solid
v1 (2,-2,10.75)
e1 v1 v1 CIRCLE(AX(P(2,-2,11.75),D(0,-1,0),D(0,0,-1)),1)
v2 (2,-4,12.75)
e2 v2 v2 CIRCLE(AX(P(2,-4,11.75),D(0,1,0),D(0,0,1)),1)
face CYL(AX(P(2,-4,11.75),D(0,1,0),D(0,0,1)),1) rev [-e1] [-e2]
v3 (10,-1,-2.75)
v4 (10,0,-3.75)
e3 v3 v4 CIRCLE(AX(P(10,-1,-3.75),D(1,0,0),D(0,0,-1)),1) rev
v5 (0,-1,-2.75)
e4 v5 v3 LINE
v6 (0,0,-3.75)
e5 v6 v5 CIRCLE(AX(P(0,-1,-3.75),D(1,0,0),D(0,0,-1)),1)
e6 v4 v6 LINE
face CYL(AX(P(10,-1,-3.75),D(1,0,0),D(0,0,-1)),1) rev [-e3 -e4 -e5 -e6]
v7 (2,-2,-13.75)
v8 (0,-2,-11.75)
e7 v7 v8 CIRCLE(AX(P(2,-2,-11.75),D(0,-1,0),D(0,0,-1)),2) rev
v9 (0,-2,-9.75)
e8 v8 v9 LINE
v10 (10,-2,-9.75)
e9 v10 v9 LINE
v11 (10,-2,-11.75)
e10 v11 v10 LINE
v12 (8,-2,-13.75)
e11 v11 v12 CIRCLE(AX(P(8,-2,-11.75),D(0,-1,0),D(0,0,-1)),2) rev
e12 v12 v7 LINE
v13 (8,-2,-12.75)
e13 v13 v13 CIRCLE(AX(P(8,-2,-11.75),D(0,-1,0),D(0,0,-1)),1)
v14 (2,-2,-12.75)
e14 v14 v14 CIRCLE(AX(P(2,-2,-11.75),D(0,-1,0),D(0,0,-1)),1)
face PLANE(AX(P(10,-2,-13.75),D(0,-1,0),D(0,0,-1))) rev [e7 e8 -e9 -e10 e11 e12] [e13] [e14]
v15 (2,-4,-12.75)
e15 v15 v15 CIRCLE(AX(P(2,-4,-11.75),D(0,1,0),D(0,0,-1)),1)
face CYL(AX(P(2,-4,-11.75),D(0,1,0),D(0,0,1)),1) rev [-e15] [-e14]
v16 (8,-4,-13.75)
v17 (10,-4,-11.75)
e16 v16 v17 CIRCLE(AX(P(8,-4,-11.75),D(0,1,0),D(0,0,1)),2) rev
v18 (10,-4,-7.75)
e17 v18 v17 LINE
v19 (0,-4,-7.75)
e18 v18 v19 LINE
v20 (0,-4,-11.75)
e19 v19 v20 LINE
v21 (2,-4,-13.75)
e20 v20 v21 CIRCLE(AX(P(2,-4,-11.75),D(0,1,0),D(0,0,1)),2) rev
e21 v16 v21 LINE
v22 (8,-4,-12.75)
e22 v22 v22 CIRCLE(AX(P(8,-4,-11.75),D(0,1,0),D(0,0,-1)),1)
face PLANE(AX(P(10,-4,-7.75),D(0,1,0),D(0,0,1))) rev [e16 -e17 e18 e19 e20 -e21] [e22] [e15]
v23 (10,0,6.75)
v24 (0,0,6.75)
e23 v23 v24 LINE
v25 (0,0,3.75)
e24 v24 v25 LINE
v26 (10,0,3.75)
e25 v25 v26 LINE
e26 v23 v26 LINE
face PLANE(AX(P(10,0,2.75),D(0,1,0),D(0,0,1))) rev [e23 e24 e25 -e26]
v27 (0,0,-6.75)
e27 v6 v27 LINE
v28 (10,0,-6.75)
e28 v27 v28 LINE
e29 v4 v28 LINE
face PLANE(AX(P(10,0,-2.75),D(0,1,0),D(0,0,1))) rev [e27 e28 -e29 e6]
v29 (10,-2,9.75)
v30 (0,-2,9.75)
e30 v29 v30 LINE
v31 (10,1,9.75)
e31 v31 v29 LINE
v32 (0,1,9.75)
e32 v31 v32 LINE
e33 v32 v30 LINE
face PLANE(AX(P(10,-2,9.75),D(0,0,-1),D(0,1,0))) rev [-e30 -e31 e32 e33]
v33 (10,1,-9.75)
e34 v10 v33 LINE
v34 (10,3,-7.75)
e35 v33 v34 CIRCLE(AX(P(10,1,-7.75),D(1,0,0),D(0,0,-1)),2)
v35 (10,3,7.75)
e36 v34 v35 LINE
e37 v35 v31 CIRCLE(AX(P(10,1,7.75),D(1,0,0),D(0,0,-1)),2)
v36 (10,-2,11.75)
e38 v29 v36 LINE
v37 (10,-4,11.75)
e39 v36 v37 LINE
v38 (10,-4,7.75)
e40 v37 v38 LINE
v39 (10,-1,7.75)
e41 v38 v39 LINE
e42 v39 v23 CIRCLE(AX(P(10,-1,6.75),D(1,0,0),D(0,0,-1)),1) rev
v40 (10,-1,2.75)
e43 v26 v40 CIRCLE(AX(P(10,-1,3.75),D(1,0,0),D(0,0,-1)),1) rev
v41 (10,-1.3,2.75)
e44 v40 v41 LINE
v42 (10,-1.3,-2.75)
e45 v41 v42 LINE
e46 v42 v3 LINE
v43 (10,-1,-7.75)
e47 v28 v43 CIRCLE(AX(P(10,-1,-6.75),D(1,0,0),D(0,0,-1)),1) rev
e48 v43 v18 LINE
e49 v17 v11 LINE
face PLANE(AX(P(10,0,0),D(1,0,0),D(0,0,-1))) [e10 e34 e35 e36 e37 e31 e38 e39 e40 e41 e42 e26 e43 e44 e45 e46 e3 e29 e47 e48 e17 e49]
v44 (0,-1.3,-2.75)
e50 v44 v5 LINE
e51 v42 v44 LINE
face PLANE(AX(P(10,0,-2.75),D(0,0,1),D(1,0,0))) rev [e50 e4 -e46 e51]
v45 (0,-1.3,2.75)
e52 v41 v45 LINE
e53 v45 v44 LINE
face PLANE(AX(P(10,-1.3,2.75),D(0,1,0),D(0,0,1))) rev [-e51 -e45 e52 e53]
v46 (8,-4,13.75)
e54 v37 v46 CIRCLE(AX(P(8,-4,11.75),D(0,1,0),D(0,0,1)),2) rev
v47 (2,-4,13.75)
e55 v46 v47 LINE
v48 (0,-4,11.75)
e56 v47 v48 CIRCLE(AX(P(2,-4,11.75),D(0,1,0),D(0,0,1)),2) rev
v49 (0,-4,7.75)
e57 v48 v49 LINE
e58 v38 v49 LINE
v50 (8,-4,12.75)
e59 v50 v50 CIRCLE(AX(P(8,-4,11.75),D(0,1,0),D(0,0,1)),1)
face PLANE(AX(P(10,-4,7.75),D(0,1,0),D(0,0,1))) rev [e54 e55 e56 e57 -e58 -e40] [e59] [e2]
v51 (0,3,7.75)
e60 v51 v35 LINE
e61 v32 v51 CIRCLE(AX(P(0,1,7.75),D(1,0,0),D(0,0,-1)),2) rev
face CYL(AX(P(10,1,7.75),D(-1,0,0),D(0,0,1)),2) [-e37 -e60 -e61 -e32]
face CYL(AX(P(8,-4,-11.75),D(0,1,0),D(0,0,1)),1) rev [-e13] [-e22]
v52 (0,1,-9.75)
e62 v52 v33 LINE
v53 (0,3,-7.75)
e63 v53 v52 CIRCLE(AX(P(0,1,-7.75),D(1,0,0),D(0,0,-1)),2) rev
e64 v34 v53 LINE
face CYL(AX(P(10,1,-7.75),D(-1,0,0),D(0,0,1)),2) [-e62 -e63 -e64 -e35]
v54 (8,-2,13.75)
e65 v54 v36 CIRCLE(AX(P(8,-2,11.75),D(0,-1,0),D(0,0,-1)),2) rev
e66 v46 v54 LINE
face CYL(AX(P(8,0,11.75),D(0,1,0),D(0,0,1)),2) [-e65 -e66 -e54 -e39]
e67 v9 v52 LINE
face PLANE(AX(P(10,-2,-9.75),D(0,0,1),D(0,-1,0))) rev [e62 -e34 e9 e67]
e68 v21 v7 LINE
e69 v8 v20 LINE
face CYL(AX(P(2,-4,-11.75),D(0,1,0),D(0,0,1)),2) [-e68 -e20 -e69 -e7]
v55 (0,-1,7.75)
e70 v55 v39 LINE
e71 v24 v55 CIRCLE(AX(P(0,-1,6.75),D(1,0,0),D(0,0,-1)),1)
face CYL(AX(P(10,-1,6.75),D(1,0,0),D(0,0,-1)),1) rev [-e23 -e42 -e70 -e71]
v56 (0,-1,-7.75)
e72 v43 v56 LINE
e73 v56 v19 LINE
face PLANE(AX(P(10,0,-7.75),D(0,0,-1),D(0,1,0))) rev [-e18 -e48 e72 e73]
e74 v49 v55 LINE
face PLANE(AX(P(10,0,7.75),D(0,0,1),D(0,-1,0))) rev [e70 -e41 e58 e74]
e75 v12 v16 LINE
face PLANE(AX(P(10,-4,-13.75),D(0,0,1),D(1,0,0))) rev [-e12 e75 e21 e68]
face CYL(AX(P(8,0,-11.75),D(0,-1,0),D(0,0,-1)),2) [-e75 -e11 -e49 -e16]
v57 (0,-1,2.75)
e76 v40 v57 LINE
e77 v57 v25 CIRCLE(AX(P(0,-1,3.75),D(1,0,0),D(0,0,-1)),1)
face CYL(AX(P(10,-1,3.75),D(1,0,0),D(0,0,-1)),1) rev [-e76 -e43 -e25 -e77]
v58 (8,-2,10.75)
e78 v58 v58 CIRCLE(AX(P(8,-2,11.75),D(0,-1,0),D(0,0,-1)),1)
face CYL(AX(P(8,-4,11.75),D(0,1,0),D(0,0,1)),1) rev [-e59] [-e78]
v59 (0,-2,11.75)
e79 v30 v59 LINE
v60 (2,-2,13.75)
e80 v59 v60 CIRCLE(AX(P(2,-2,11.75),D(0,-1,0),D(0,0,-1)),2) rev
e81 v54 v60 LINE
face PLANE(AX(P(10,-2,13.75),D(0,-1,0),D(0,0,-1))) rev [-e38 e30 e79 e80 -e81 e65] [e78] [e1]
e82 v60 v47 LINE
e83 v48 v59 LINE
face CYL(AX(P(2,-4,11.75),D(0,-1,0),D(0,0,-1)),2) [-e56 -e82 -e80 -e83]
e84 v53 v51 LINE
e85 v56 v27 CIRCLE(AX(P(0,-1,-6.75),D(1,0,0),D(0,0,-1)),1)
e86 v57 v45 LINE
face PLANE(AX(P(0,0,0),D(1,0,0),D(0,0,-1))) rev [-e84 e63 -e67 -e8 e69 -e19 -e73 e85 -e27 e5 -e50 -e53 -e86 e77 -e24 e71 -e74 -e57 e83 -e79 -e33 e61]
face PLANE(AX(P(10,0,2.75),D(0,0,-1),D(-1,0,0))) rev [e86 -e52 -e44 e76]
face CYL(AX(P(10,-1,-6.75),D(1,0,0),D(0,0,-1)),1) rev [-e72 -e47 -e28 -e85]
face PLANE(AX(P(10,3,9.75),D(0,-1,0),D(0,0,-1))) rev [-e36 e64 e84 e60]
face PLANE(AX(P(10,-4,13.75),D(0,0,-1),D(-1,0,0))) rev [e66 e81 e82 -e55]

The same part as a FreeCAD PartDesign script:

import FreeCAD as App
import Part
import Sketcher


def edges_at(feature, points):
    """Names of the edges that pass closest to the given points."""
    edges = feature.Shape.Edges
    near = lambda p: min(range(len(edges)), key=lambda i: edges[i].distToShape(Part.Vertex(*p))[0])
    return sorted({f"Edge{near(p) + 1}" for p in points})

doc = App.newDocument("Part")
body = doc.addObject("PartDesign::Body", "Body")

# Sketch on YZ plane
sketch1 = body.newObject("Sketcher::SketchObject", "Sketch")
sketch1.AttachmentSupport = (doc.getObject("YZ_Plane"), [""])
sketch1.MapMode = "FlatFace"
sketch1.addGeometry([
    Part.LineSegment(App.Vector(0, 7.75, 0), App.Vector(0, 2.75, 0)),  # 0
    Part.LineSegment(App.Vector(0, 2.75, 0), App.Vector(-1.3, 2.75, 0)),  # 1
    Part.LineSegment(App.Vector(-1.3, 2.75, 0), App.Vector(-1.3, -2.75, 0)),  # 2
    Part.LineSegment(App.Vector(-1.3, -2.75, 0), App.Vector(0, -2.75, 0)),  # 3
    Part.LineSegment(App.Vector(0, -2.75, 0), App.Vector(0, -7.75, 0)),  # 4
    Part.LineSegment(App.Vector(0, -7.75, 0), App.Vector(-4, -7.75, 0)),  # 5
    Part.LineSegment(App.Vector(-4, -7.75, 0), App.Vector(-4, -13.75, 0)),  # 6
    Part.LineSegment(App.Vector(-4, -13.75, 0), App.Vector(-2, -13.75, 0)),  # 7
    Part.LineSegment(App.Vector(-2, -13.75, 0), App.Vector(-2, -9.75, 0)),  # 8
    Part.LineSegment(App.Vector(-2, -9.75, 0), App.Vector(3, -9.75, 0)),  # 9
    Part.LineSegment(App.Vector(3, -9.75, 0), App.Vector(3, 9.75, 0)),  # 10
    Part.LineSegment(App.Vector(3, 9.75, 0), App.Vector(-2, 9.75, 0)),  # 11
    Part.LineSegment(App.Vector(-2, 9.75, 0), App.Vector(-2, 13.75, 0)),  # 12
    Part.LineSegment(App.Vector(-2, 13.75, 0), App.Vector(-4, 13.75, 0)),  # 13
    Part.LineSegment(App.Vector(-4, 13.75, 0), App.Vector(-4, 7.75, 0)),  # 14
    Part.LineSegment(App.Vector(-4, 7.75, 0), App.Vector(0, 7.75, 0)),  # 15
], False)
sketch1.addConstraint([
    Sketcher.Constraint("Coincident", 0, 2, 1, 1),
    Sketcher.Constraint("Coincident", 1, 2, 2, 1),
    Sketcher.Constraint("Coincident", 2, 2, 3, 1),
    Sketcher.Constraint("Coincident", 3, 2, 4, 1),
    Sketcher.Constraint("Coincident", 4, 2, 5, 1),
    Sketcher.Constraint("Coincident", 5, 2, 6, 1),
    Sketcher.Constraint("Coincident", 6, 2, 7, 1),
    Sketcher.Constraint("Coincident", 7, 2, 8, 1),
    Sketcher.Constraint("Coincident", 8, 2, 9, 1),
    Sketcher.Constraint("Coincident", 9, 2, 10, 1),
    Sketcher.Constraint("Coincident", 10, 2, 11, 1),
    Sketcher.Constraint("Coincident", 11, 2, 12, 1),
    Sketcher.Constraint("Coincident", 12, 2, 13, 1),
    Sketcher.Constraint("Coincident", 13, 2, 14, 1),
    Sketcher.Constraint("Coincident", 14, 2, 15, 1),
    Sketcher.Constraint("Coincident", 15, 2, 0, 1),
    Sketcher.Constraint("Vertical", 0),
    Sketcher.Constraint("Horizontal", 1),
    Sketcher.Constraint("Vertical", 2),
    Sketcher.Constraint("Horizontal", 3),
    Sketcher.Constraint("Vertical", 4),
    Sketcher.Constraint("Horizontal", 5),
    Sketcher.Constraint("Vertical", 6),
    Sketcher.Constraint("Horizontal", 7),
    Sketcher.Constraint("Vertical", 8),
    Sketcher.Constraint("Horizontal", 9),
    Sketcher.Constraint("Vertical", 10),
    Sketcher.Constraint("Horizontal", 11),
    Sketcher.Constraint("Vertical", 12),
    Sketcher.Constraint("Horizontal", 13),
    Sketcher.Constraint("Vertical", 14),
    Sketcher.Constraint("Horizontal", 15),
    Sketcher.Constraint("Symmetric", 0, 2, 3, 2, -1, 1),
    Sketcher.Constraint("Symmetric", 8, 2, 11, 2, -1),
    Sketcher.Constraint("Symmetric", 6, 2, 13, 2, -1),
    Sketcher.Constraint("Symmetric", 4, 2, 15, 2, -1),
    Sketcher.Constraint("Equal", 11, 0),
    Sketcher.Constraint("Equal", 15, 8),
    Sketcher.Constraint("DistanceX", 5, 2, 5, 1, 4.0),
    Sketcher.Constraint("DistanceX", 7, 1, 7, 2, 2.0),
    Sketcher.Constraint("DistanceX", 9, 1, 9, 2, 5.0),
    Sketcher.Constraint("DistanceY", 6, 2, 6, 1, 6.0),
    Sketcher.Constraint("DistanceX", 1, 2, 1, 1, 1.3),
    Sketcher.Constraint("DistanceY", 2, 2, 2, 1, 5.5),
])
pad1 = body.newObject("PartDesign::Pad", "Pad")
pad1.Profile = sketch1
pad1.Length = 10
doc.recompute()

fillet = body.newObject("PartDesign::Fillet", "Fillet")
fillet.Base = (pad1, edges_at(pad1, [
    (0, -3, 13.75),
    (0, -3, -13.75),
    (5, 3, 9.75),
    (5, 3, -9.75),
    (10, -3, -13.75),
    (10, -3, 13.75),
]))
fillet.Radius = 2

# Sketch on XZ plane
sketch2 = body.newObject("Sketcher::SketchObject", "Sketch001")
sketch2.AttachmentSupport = (doc.getObject("XZ_Plane"), [""])
sketch2.MapMode = "FlatFace"
sketch2.AttachmentOffset = App.Placement(App.Vector(0, 0, 2), App.Rotation())
sketch2.addGeometry([
    Part.Circle(App.Vector(8, 11.75, 0), App.Vector(0, 0, 1), 1),
    Part.Circle(App.Vector(2, 11.75, 0), App.Vector(0, 0, 1), 1),
    Part.Circle(App.Vector(2, -11.75, 0), App.Vector(0, 0, 1), 1),
    Part.Circle(App.Vector(8, -11.75, 0), App.Vector(0, 0, 1), 1),
], False)
sketch2.addConstraint([
    Sketcher.Constraint("Equal", 0, 1),
    Sketcher.Constraint("Equal", 1, 2),
    Sketcher.Constraint("Equal", 2, 3),
    Sketcher.Constraint("Symmetric", 1, 3, 2, 3, -1),
    Sketcher.Constraint("Symmetric", 0, 3, 3, 3, -1),
    Sketcher.Constraint("Horizontal", 0, 3, 1, 3),
    Sketcher.Constraint("Diameter", 0, 2.0),
    Sketcher.Constraint("DistanceX", -1, 1, 0, 3, 8.0),
    Sketcher.Constraint("DistanceX", -1, 1, 1, 3, 2.0),
    Sketcher.Constraint("DistanceY", 2, 3, 1, 3, 23.5),
])
pocket1 = body.newObject("PartDesign::Pocket", "Pocket")
pocket1.Profile = sketch2
pocket1.Type = "ThroughAll"
pocket1.Midplane = True
doc.recompute()

fillet2 = body.newObject("PartDesign::Fillet", "Fillet001")
fillet2.Base = (pocket1, edges_at(pocket1, [
    (5, 0, 2.75),
    (5, 0, 7.75),
    (5, 0, -7.75),
    (5, 0, -2.75),
]))
fillet2.Radius = 1

doc.recompute()
